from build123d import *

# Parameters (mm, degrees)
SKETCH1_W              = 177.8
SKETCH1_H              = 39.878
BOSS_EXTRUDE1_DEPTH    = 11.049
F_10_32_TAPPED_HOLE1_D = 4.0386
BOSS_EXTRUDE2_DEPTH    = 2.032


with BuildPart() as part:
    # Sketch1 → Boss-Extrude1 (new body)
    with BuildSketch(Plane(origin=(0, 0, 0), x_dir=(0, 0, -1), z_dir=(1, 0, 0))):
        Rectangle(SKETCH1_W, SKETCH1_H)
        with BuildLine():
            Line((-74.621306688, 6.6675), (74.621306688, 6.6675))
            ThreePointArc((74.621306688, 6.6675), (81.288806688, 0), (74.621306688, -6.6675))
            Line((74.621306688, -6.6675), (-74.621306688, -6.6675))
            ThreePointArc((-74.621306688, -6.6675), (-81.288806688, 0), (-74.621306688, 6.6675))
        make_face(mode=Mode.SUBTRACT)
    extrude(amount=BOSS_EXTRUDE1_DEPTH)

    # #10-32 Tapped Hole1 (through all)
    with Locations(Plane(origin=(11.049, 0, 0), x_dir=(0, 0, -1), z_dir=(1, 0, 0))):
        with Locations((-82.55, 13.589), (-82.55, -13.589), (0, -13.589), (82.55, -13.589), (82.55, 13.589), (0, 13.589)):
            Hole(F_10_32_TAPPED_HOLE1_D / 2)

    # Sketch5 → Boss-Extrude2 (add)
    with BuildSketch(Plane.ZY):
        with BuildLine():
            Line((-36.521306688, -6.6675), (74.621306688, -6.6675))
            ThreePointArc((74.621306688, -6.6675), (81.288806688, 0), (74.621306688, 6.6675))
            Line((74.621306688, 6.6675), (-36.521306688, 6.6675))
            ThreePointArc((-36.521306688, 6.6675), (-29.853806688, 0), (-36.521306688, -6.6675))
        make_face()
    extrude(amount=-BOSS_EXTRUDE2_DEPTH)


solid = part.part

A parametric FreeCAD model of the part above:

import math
import FreeCAD as App
import Part
import Sketcher

V = App.Vector
Q = App.Units.Quantity

doc = App.newDocument("Part")
body = doc.addObject("PartDesign::Body", "Body")

# Sketch on YZ plane
sketch1 = doc.addObject("Sketcher::SketchObject", "Sketch")
body.addObject(sketch1)
sketch1.AttachmentSupport = (doc.YZ_Plane, [""])
sketch1.MapMode = "FlatFace"
sketch1.addGeometry([
    Part.LineSegment(V(20, 89, 0), V(-20, 89, 0)),  # 0
    Part.LineSegment(V(-20, 89, 0), V(-20, -89, 0)),  # 1
    Part.LineSegment(V(-20, -89, 0), V(20, -89, 0)),  # 2
    Part.LineSegment(V(20, -89, 0), V(20, 89, 0)),  # 3
    Part.ArcOfCircle(Part.Circle(V(0, 75, 0), V(0, 0, 1), 7), math.radians(0), math.radians(180)),  # 4
    Part.LineSegment(V(7, 75, 0), V(7, -75, 0)),  # 5
    Part.ArcOfCircle(Part.Circle(V(0, -75, 0), V(0, 0, 1), 7), math.radians(180), math.radians(360)),  # 6
    Part.LineSegment(V(-7, -75, 0), V(-7, 75, 0)),  # 7
], False)
sketch1.addConstraint([
    Sketcher.Constraint("Coincident", 0, 2, 1, 1),
    Sketcher.Constraint("Coincident", 1, 2, 2, 1),
    Sketcher.Constraint("Coincident", 2, 2, 3, 1),
    Sketcher.Constraint("Coincident", 3, 2, 0, 1),
    Sketcher.Constraint("Tangent", 4, 1, 5, 1),
    Sketcher.Constraint("Tangent", 5, 2, 6, 2),
    Sketcher.Constraint("Tangent", 6, 1, 7, 1),
    Sketcher.Constraint("Tangent", 7, 2, 4, 2),
    Sketcher.Constraint("Horizontal", 0),
    Sketcher.Constraint("Vertical", 1),
    Sketcher.Constraint("Horizontal", 2),
    Sketcher.Constraint("Vertical", 3),
    Sketcher.Constraint("Vertical", 5),
    Sketcher.Constraint("Vertical", 7),
    Sketcher.Constraint("Symmetric", 4, 3, 6, 3, -1, 1),
    Sketcher.Constraint("Symmetric", 0, 2, 2, 2, -1, 1),
    Sketcher.Constraint("DistanceY", 1, 2, 1, 1, Q("7 in")),
    Sketcher.Constraint("DistanceX", 0, 2, 0, 1, Q("1.57 in")),
    Sketcher.Constraint("Radius", 4, Q("0.2625 in")),
    Sketcher.Constraint("DistanceY", 5, 2, 5, 1, Q("149.242613 mm")),
])
pad1 = doc.addObject("PartDesign::Pad", "Pad")
body.addObject(pad1)
pad1.Profile = sketch1
pad1.Length = Q("0.435 in")

# Sketch on YZ plane
sketch2 = doc.addObject("Sketcher::SketchObject", "Sketch001")
body.addObject(sketch2)
sketch2.AttachmentSupport = (doc.YZ_Plane, [""])
sketch2.MapMode = "FlatFace"
sketch2.AttachmentOffset = App.Placement(V(0, 0, 0.435 * 25.4), App.Rotation())
sketch2.addGeometry([
    Part.Circle(V(13.6, 82.5, 0), V(0, 0, 1), 2),  # 0
    Part.Circle(V(-13.6, 82.5, 0), V(0, 0, 1), 2),  # 1
    Part.Circle(V(-13.6, 0, 0), V(0, 0, 1), 2),  # 2
    Part.Circle(V(-13.6, -82.5, 0), V(0, 0, 1), 2),  # 3
    Part.Circle(V(13.6, -82.5, 0), V(0, 0, 1), 2),  # 4
    Part.Circle(V(13.6, 0, 0), V(0, 0, 1), 2),  # 5
], False)
sketch2.addConstraint([
    Sketcher.Constraint("Equal", 0, 1),
    Sketcher.Constraint("Equal", 1, 2),
    Sketcher.Constraint("Equal", 2, 3),
    Sketcher.Constraint("Equal", 3, 4),
    Sketcher.Constraint("Equal", 4, 5),
    Sketcher.Constraint("Symmetric", 0, 3, 3, 3, -1, 1),
    Sketcher.Constraint("Symmetric", 1, 3, 4, 3, -1, 1),
    Sketcher.Constraint("Symmetric", 2, 3, 5, 3, -1, 1),
    Sketcher.Constraint("Symmetric", 0, 3, 1, 3, -2),
    Sketcher.Constraint("PointOnObject", 2, 3, -1),
    Sketcher.Constraint("Vertical", 1, 3, 2, 3),
    Sketcher.Constraint("Diameter", 0, Q("0.159 in")),
    Sketcher.Constraint("DistanceY", 3, 3, 1, 3, Q("6.5 in")),
    Sketcher.Constraint("DistanceX", 1, 3, 0, 3, Q("1.07 in")),
])
doc.recompute()
hole = doc.addObject("PartDesign::Hole", "Hole")
body.addObject(hole)
hole.Profile = sketch2
hole.ThreadType = "None"
hole.Diameter = Q("0.159 in")
hole.DepthType = "ThroughAll"

# Sketch on YZ plane
sketch3 = doc.addObject("Sketcher::SketchObject", "Sketch002")
body.addObject(sketch3)
sketch3.AttachmentSupport = (doc.YZ_Plane, [""])
sketch3.MapMode = "FlatFace"
sketch3.addGeometry([
    Part.LineSegment(V(-7, -37, 0), V(-7, 75, 0)),
    Part.ArcOfCircle(Part.Circle(V(0, 75, 0), V(0, 0, 1), 7), math.radians(0), math.radians(180)),
    Part.LineSegment(V(7, 75, 0), V(7, -37, 0)),
    Part.ArcOfCircle(Part.Circle(V(0, -37, 0), V(0, 0, 1), 7), math.radians(0), math.radians(180)),
], False)
sketch3.addConstraint([
    Sketcher.Constraint("Tangent", 0, 2, 1, 2),
    Sketcher.Constraint("Tangent", 1, 1, 2, 1),
    Sketcher.Constraint("Tangent", 2, 2, 3, 1),
    Sketcher.Constraint("Tangent", 3, 2, 0, 1),
    Sketcher.Constraint("Vertical", 0),
    Sketcher.Constraint("Vertical", 2),
    Sketcher.Constraint("PointOnObject", 1, 3, -2),
    Sketcher.Constraint("Radius", 1, Q("0.2625 in")),
    Sketcher.Constraint("DistanceY", 0, 1, 0, 2, Q("111.142613 mm")),
    Sketcher.Constraint("DistanceY", -1, 1, 1, 3, Q("74.621307 mm")),
])
pad2 = doc.addObject("PartDesign::Pad", "Pad001")
body.addObject(pad2)
pad2.Profile = sketch3
pad2.Length = Q("0.08 in")

doc.recompute()
